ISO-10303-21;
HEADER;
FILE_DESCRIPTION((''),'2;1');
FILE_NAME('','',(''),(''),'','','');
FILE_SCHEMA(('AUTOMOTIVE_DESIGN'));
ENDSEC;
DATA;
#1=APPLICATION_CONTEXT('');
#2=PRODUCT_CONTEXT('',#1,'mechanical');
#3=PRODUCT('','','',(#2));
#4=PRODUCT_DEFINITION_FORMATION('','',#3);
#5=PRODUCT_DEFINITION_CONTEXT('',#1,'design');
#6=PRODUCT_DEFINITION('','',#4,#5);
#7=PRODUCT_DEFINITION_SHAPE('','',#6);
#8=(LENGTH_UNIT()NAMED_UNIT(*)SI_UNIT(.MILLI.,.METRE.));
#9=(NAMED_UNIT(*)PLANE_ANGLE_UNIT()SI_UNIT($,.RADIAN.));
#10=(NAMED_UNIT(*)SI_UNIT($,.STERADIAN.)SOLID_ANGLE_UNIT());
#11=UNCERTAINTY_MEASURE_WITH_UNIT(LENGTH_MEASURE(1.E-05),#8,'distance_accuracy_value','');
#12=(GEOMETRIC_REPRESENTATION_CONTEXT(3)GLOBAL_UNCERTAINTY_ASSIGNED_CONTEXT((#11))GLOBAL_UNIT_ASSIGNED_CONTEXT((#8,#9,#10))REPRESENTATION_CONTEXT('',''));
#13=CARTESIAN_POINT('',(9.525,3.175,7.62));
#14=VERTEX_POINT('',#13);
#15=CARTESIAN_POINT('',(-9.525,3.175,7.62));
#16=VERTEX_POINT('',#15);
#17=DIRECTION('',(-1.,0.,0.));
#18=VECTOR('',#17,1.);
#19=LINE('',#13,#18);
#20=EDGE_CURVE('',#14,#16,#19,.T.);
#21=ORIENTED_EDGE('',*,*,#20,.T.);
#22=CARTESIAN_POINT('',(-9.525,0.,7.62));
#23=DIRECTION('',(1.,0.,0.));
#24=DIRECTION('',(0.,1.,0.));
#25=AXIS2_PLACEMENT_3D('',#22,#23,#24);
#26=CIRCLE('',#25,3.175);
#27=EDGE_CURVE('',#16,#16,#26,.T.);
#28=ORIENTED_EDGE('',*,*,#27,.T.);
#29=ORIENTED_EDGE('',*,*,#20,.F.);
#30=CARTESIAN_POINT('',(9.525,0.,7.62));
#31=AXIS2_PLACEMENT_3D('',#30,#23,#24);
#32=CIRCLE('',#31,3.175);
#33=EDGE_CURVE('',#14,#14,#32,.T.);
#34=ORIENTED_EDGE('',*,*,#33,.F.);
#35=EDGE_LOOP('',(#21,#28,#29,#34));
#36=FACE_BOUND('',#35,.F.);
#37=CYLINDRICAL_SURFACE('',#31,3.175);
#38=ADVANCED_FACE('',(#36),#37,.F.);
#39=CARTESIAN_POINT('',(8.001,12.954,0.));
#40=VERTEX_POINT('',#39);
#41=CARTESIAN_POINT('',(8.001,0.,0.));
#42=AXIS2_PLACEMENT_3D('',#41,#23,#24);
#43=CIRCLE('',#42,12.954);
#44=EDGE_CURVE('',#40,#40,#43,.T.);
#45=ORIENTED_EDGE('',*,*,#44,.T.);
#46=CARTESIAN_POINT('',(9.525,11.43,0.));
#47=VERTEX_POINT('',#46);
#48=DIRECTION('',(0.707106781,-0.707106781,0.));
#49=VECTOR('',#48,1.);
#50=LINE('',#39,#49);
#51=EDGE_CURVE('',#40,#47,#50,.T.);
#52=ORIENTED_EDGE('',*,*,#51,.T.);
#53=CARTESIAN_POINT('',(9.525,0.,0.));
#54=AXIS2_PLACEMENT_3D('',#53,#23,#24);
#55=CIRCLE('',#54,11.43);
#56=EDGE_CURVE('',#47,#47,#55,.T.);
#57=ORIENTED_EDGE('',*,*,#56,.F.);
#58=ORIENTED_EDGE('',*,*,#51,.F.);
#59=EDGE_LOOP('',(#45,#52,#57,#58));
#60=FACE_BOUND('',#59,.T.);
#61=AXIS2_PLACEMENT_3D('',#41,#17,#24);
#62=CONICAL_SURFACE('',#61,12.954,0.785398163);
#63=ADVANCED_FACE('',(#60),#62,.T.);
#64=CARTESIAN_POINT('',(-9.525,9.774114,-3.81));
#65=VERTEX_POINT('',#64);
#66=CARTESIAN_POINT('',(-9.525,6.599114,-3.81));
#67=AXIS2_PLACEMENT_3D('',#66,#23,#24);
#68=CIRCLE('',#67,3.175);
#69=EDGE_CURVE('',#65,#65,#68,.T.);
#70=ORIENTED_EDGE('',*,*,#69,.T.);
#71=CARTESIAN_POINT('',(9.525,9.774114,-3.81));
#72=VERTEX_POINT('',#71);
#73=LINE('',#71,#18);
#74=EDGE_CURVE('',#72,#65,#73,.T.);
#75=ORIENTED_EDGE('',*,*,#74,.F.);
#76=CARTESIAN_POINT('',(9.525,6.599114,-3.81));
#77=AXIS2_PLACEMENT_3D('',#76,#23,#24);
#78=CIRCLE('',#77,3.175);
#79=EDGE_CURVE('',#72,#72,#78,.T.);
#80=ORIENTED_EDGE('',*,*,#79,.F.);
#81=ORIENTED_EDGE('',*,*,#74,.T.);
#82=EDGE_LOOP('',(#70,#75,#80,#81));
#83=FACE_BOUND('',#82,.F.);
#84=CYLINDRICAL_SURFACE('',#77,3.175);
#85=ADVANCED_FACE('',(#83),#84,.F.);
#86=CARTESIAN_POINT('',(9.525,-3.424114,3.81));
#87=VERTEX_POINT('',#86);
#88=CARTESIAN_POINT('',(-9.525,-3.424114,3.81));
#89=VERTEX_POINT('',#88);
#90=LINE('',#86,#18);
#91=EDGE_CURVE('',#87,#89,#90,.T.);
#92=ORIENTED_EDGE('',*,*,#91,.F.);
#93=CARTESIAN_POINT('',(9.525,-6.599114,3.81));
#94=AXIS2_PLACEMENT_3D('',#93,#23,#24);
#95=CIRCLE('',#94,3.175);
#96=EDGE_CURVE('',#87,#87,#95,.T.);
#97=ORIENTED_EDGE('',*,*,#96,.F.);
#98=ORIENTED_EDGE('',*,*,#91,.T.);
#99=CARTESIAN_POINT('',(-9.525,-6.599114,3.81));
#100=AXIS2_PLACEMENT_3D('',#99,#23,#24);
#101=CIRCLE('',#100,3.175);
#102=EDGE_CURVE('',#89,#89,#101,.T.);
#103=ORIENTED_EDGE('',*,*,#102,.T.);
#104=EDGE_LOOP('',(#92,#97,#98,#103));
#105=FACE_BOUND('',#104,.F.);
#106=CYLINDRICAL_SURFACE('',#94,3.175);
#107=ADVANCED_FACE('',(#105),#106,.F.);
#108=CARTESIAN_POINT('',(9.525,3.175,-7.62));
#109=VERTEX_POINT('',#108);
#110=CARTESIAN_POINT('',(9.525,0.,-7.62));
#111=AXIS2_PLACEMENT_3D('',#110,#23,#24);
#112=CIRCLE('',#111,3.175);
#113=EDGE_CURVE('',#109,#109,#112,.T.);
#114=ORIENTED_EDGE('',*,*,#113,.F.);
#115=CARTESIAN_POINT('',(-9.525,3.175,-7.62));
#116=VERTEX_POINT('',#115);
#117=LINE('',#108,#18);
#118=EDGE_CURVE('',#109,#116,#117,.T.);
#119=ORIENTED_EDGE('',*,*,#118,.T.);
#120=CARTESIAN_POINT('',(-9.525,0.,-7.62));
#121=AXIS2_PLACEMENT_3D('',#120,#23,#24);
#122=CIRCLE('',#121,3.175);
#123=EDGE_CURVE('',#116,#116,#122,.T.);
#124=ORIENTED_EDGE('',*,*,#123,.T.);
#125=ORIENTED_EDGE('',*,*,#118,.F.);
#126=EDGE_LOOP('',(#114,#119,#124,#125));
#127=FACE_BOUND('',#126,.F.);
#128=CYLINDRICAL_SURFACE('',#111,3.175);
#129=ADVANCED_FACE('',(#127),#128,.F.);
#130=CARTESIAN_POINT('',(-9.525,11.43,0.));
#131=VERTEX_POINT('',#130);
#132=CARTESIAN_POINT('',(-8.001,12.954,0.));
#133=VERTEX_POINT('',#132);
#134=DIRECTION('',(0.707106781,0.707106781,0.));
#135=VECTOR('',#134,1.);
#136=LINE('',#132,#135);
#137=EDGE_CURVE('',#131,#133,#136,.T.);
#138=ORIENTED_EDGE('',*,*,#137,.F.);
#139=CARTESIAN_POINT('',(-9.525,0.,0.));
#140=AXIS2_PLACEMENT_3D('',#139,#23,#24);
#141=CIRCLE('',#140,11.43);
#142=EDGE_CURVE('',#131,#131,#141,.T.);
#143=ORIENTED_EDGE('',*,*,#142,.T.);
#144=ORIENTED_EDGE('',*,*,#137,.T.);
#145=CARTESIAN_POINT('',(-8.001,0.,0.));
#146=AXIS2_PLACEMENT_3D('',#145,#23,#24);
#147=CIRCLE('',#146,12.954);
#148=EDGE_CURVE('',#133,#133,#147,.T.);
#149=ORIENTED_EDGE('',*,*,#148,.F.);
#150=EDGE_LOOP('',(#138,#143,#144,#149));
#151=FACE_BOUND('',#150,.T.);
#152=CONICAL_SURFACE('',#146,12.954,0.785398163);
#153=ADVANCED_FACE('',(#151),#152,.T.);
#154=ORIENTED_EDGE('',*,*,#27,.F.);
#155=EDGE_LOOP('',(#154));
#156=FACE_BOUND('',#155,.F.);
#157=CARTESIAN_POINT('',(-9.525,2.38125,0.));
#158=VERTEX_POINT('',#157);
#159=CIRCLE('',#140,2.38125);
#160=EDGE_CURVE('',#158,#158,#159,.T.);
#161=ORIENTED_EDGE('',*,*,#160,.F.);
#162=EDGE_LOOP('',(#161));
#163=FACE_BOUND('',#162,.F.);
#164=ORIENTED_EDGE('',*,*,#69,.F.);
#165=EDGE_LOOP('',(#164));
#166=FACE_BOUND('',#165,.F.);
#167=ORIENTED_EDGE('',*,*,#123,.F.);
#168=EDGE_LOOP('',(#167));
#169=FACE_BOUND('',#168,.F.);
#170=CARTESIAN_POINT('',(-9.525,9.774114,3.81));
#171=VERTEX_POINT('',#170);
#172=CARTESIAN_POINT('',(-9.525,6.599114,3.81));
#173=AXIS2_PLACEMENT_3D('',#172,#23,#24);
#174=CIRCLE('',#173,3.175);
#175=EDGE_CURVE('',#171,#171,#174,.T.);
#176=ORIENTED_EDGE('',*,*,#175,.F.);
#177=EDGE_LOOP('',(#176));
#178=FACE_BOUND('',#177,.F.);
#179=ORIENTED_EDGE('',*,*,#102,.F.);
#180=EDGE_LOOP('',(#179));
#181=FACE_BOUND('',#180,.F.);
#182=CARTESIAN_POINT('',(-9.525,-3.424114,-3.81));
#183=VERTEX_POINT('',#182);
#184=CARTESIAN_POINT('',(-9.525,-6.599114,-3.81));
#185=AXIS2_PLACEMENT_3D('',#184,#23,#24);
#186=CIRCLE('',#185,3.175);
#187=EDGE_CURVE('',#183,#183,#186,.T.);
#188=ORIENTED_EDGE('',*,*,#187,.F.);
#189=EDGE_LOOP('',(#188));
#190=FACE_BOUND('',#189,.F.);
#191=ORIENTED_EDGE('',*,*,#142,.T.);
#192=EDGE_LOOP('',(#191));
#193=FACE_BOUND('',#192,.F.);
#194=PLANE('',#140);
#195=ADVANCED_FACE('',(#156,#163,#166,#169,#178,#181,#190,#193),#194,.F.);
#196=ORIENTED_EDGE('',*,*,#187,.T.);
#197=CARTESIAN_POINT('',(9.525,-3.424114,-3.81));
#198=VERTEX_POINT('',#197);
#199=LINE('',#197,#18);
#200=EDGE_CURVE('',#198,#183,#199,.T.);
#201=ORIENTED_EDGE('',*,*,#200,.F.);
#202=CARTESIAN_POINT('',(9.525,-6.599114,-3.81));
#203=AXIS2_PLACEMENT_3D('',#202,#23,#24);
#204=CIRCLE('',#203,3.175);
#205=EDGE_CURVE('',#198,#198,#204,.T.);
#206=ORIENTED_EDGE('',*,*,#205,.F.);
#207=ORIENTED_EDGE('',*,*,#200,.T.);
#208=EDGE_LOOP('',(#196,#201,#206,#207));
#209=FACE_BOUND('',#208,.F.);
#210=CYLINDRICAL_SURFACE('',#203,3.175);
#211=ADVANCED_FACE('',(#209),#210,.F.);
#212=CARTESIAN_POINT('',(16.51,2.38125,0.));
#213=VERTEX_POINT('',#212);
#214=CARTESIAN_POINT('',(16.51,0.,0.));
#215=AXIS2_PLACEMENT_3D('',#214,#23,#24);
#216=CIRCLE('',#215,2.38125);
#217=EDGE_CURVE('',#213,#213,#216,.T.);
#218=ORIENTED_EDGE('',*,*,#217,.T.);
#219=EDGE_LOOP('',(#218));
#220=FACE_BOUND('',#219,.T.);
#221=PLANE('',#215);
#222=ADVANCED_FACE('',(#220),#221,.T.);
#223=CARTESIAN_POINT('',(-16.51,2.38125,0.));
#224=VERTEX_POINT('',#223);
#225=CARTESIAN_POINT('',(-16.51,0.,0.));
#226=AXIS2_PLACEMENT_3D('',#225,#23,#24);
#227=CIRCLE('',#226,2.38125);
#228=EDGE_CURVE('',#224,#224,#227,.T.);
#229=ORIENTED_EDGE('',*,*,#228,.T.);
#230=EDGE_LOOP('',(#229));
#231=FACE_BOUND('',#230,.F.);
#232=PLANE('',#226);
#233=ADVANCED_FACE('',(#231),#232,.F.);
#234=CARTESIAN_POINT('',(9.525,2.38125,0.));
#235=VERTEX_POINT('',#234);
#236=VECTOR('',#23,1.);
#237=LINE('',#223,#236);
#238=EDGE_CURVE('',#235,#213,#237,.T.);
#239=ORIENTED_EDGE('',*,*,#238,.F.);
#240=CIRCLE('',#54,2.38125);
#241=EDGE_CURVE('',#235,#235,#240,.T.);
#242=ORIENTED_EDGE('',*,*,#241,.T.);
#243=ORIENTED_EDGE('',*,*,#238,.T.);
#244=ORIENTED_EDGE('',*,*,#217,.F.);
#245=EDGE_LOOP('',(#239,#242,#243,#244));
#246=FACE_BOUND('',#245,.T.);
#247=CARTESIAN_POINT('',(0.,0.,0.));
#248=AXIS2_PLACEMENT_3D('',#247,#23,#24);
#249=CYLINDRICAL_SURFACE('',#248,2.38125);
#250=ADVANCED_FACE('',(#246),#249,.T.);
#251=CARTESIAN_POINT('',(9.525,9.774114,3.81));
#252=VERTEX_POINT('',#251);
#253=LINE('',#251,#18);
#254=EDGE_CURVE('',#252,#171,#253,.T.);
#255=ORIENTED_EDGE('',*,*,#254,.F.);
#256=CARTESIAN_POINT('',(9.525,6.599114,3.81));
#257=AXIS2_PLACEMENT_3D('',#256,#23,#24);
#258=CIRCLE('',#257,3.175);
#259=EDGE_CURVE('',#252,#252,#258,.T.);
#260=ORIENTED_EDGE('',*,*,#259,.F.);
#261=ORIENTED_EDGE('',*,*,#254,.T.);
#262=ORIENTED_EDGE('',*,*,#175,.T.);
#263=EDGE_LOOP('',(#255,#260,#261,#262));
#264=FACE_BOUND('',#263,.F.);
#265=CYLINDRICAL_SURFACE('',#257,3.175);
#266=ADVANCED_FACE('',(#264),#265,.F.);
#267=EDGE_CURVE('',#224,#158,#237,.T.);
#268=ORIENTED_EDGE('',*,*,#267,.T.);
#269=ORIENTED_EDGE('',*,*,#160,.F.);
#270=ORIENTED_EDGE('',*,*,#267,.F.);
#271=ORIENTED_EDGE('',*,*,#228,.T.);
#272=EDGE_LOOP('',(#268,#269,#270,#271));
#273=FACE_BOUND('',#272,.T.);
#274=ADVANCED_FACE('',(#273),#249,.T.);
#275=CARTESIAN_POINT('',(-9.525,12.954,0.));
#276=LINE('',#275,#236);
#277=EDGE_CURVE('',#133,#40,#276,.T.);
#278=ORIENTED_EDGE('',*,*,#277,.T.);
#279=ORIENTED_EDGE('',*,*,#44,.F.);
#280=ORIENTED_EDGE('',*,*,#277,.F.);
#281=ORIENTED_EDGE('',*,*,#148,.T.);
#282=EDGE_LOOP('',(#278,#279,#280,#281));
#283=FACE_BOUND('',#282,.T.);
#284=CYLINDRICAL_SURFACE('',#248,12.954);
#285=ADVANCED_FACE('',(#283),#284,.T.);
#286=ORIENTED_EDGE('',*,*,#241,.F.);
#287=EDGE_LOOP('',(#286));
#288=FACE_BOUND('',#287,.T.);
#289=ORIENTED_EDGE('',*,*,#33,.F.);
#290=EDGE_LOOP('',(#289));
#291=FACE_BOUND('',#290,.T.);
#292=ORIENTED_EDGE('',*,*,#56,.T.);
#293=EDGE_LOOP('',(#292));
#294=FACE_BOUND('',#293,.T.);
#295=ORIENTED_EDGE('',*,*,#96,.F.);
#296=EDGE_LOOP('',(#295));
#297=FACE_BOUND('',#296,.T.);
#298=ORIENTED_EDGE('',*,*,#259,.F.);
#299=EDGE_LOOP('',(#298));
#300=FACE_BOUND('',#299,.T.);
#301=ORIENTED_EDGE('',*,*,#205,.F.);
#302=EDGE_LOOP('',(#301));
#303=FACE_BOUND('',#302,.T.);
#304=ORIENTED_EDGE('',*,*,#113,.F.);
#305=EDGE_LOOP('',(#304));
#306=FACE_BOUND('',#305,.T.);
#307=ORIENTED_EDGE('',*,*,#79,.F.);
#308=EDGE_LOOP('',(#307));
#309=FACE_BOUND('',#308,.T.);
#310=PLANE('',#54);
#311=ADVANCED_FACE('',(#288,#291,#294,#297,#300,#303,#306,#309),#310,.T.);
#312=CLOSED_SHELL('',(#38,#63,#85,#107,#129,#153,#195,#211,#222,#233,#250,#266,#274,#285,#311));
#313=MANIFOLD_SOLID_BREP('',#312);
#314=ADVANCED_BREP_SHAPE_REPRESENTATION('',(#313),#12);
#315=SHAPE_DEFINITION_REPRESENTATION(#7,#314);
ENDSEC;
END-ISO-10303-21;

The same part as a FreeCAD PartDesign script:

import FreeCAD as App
import Part
import Sketcher
from FreeCAD import Vector
Q = App.Units.Quantity


def edges_at(feature, points):
    """Names of the edges that pass closest to the given points."""
    edges = feature.Shape.Edges
    near = lambda p: min(range(len(edges)), key=lambda i: edges[i].distToShape(Part.Vertex(*p))[0])
    return sorted({f"Edge{near(p) + 1}" for p in points})

doc = App.newDocument("Part")
body = doc.addObject("PartDesign::Body", "Body")

# Sketch on YZ plane
sketch1 = body.newObject("Sketcher::SketchObject", "Sketch")
sketch1.AttachmentSupport = (doc.getObject("YZ_Plane"), [""])
sketch1.MapMode = "FlatFace"
sketch1.addGeometry(Part.Circle(Vector(0, 0, 0), Vector(0, 0, 1), 12.954), False)
sketch1.addGeometry(Part.Circle(Vector(0, 0, 0), Vector(0, 0, 1), 2.38125), False)
sketch1.addConstraint(Sketcher.Constraint("Coincident", 0, 3, -1, 1))
sketch1.addConstraint(Sketcher.Constraint("Coincident", 1, 3, -1, 1))
sketch1.addConstraint(Sketcher.Constraint("Diameter", 0, Q("1.02 in")))
sketch1.addConstraint(Sketcher.Constraint("Diameter", 1, Q("0.1875 in")))
pad1 = body.newObject("PartDesign::Pad", "Pad")
pad1.Profile = sketch1
pad1.Length = Q("0.75 in")
pad1.Midplane = True

# Sketch on YZ plane
sketch2 = body.newObject("Sketcher::SketchObject", "Sketch001")
sketch2.AttachmentSupport = (doc.getObject("YZ_Plane"), [""])
sketch2.MapMode = "FlatFace"
sketch2.addGeometry(Part.Circle(Vector(0, 0, 0), Vector(0, 0, 1), 2.38125), False)
sketch2.addConstraint(Sketcher.Constraint("Coincident", 0, 3, -1, 1))
sketch2.addConstraint(Sketcher.Constraint("Diameter", 0, Q("0.1875 in")))
pad2 = body.newObject("PartDesign::Pad", "Pad001")
pad2.Profile = sketch2
pad2.Length = Q("1.3 in")
pad2.Midplane = True

# Sketch on YZ plane
sketch3 = body.newObject("Sketcher::SketchObject", "Sketch002")
sketch3.AttachmentSupport = (doc.getObject("YZ_Plane"), [""])
sketch3.MapMode = "FlatFace"
sketch3.AttachmentOffset = App.Placement(Vector(0, 0, 0.375 * 25.4), App.Rotation())
sketch3.addGeometry(Part.Circle(Vector(0, 7.62, 0), Vector(0, 0, 1), 3.175), False)
sketch3.addGeometry(Part.Circle(Vector(-6.599114, 3.81, 0), Vector(0, 0, 1), 3.175), False)
sketch3.addGeometry(Part.Circle(Vector(-6.599114, -3.81, 0), Vector(0, 0, 1), 3.175), False)
sketch3.addGeometry(Part.Circle(Vector(0, -7.62, 0), Vector(0, 0, 1), 3.175), False)
sketch3.addGeometry(Part.Circle(Vector(6.599114, -3.81, 0), Vector(0, 0, 1), 3.175), False)
sketch3.addGeometry(Part.Circle(Vector(6.599114, 3.81, 0), Vector(0, 0, 1), 3.175), False)
sketch3.addConstraint(Sketcher.Constraint("Equal", 0, 1))
sketch3.addConstraint(Sketcher.Constraint("Equal", 1, 2))
sketch3.addConstraint(Sketcher.Constraint("Equal", 2, 3))
sketch3.addConstraint(Sketcher.Constraint("Equal", 3, 4))
sketch3.addConstraint(Sketcher.Constraint("Equal", 4, 5))
sketch3.addConstraint(Sketcher.Constraint("Symmetric", 0, 3, 3, 3, -1, 1))
sketch3.addConstraint(Sketcher.Constraint("Symmetric", 1, 3, 4, 3, -1, 1))
sketch3.addConstraint(Sketcher.Constraint("Symmetric", 2, 3, 5, 3, -1, 1))
sketch3.addConstraint(Sketcher.Constraint("Symmetric", 2, 3, 4, 3, -2))
sketch3.addConstraint(Sketcher.Constraint("PointOnObject", 0, 3, -2))
sketch3.addConstraint(Sketcher.Constraint("Diameter", 0, Q("0.25 in")))
sketch3.addConstraint(Sketcher.Constraint("DistanceY", -1, 1, 0, 3, Q("0.3 in")))
sketch3.addConstraint(Sketcher.Constraint("DistanceY", 2, 3, 1, 3, Q("0.3 in")))
sketch3.addConstraint(Sketcher.Constraint("DistanceX", 1, 3, -1, 1, 6.599114))
pocket1 = body.newObject("PartDesign::Pocket", "Pocket")
pocket1.Profile = sketch3
pocket1.Type = "ThroughAll"
doc.recompute()

chamfer = body.newObject("PartDesign::Chamfer", "Chamfer")
chamfer.Base = (pocket1, edges_at(pocket1, [(9.525, -12.954, 0), (-9.525, -12.954, 0)]))
chamfer.Size = Q("0.06 in")

doc.recompute()
